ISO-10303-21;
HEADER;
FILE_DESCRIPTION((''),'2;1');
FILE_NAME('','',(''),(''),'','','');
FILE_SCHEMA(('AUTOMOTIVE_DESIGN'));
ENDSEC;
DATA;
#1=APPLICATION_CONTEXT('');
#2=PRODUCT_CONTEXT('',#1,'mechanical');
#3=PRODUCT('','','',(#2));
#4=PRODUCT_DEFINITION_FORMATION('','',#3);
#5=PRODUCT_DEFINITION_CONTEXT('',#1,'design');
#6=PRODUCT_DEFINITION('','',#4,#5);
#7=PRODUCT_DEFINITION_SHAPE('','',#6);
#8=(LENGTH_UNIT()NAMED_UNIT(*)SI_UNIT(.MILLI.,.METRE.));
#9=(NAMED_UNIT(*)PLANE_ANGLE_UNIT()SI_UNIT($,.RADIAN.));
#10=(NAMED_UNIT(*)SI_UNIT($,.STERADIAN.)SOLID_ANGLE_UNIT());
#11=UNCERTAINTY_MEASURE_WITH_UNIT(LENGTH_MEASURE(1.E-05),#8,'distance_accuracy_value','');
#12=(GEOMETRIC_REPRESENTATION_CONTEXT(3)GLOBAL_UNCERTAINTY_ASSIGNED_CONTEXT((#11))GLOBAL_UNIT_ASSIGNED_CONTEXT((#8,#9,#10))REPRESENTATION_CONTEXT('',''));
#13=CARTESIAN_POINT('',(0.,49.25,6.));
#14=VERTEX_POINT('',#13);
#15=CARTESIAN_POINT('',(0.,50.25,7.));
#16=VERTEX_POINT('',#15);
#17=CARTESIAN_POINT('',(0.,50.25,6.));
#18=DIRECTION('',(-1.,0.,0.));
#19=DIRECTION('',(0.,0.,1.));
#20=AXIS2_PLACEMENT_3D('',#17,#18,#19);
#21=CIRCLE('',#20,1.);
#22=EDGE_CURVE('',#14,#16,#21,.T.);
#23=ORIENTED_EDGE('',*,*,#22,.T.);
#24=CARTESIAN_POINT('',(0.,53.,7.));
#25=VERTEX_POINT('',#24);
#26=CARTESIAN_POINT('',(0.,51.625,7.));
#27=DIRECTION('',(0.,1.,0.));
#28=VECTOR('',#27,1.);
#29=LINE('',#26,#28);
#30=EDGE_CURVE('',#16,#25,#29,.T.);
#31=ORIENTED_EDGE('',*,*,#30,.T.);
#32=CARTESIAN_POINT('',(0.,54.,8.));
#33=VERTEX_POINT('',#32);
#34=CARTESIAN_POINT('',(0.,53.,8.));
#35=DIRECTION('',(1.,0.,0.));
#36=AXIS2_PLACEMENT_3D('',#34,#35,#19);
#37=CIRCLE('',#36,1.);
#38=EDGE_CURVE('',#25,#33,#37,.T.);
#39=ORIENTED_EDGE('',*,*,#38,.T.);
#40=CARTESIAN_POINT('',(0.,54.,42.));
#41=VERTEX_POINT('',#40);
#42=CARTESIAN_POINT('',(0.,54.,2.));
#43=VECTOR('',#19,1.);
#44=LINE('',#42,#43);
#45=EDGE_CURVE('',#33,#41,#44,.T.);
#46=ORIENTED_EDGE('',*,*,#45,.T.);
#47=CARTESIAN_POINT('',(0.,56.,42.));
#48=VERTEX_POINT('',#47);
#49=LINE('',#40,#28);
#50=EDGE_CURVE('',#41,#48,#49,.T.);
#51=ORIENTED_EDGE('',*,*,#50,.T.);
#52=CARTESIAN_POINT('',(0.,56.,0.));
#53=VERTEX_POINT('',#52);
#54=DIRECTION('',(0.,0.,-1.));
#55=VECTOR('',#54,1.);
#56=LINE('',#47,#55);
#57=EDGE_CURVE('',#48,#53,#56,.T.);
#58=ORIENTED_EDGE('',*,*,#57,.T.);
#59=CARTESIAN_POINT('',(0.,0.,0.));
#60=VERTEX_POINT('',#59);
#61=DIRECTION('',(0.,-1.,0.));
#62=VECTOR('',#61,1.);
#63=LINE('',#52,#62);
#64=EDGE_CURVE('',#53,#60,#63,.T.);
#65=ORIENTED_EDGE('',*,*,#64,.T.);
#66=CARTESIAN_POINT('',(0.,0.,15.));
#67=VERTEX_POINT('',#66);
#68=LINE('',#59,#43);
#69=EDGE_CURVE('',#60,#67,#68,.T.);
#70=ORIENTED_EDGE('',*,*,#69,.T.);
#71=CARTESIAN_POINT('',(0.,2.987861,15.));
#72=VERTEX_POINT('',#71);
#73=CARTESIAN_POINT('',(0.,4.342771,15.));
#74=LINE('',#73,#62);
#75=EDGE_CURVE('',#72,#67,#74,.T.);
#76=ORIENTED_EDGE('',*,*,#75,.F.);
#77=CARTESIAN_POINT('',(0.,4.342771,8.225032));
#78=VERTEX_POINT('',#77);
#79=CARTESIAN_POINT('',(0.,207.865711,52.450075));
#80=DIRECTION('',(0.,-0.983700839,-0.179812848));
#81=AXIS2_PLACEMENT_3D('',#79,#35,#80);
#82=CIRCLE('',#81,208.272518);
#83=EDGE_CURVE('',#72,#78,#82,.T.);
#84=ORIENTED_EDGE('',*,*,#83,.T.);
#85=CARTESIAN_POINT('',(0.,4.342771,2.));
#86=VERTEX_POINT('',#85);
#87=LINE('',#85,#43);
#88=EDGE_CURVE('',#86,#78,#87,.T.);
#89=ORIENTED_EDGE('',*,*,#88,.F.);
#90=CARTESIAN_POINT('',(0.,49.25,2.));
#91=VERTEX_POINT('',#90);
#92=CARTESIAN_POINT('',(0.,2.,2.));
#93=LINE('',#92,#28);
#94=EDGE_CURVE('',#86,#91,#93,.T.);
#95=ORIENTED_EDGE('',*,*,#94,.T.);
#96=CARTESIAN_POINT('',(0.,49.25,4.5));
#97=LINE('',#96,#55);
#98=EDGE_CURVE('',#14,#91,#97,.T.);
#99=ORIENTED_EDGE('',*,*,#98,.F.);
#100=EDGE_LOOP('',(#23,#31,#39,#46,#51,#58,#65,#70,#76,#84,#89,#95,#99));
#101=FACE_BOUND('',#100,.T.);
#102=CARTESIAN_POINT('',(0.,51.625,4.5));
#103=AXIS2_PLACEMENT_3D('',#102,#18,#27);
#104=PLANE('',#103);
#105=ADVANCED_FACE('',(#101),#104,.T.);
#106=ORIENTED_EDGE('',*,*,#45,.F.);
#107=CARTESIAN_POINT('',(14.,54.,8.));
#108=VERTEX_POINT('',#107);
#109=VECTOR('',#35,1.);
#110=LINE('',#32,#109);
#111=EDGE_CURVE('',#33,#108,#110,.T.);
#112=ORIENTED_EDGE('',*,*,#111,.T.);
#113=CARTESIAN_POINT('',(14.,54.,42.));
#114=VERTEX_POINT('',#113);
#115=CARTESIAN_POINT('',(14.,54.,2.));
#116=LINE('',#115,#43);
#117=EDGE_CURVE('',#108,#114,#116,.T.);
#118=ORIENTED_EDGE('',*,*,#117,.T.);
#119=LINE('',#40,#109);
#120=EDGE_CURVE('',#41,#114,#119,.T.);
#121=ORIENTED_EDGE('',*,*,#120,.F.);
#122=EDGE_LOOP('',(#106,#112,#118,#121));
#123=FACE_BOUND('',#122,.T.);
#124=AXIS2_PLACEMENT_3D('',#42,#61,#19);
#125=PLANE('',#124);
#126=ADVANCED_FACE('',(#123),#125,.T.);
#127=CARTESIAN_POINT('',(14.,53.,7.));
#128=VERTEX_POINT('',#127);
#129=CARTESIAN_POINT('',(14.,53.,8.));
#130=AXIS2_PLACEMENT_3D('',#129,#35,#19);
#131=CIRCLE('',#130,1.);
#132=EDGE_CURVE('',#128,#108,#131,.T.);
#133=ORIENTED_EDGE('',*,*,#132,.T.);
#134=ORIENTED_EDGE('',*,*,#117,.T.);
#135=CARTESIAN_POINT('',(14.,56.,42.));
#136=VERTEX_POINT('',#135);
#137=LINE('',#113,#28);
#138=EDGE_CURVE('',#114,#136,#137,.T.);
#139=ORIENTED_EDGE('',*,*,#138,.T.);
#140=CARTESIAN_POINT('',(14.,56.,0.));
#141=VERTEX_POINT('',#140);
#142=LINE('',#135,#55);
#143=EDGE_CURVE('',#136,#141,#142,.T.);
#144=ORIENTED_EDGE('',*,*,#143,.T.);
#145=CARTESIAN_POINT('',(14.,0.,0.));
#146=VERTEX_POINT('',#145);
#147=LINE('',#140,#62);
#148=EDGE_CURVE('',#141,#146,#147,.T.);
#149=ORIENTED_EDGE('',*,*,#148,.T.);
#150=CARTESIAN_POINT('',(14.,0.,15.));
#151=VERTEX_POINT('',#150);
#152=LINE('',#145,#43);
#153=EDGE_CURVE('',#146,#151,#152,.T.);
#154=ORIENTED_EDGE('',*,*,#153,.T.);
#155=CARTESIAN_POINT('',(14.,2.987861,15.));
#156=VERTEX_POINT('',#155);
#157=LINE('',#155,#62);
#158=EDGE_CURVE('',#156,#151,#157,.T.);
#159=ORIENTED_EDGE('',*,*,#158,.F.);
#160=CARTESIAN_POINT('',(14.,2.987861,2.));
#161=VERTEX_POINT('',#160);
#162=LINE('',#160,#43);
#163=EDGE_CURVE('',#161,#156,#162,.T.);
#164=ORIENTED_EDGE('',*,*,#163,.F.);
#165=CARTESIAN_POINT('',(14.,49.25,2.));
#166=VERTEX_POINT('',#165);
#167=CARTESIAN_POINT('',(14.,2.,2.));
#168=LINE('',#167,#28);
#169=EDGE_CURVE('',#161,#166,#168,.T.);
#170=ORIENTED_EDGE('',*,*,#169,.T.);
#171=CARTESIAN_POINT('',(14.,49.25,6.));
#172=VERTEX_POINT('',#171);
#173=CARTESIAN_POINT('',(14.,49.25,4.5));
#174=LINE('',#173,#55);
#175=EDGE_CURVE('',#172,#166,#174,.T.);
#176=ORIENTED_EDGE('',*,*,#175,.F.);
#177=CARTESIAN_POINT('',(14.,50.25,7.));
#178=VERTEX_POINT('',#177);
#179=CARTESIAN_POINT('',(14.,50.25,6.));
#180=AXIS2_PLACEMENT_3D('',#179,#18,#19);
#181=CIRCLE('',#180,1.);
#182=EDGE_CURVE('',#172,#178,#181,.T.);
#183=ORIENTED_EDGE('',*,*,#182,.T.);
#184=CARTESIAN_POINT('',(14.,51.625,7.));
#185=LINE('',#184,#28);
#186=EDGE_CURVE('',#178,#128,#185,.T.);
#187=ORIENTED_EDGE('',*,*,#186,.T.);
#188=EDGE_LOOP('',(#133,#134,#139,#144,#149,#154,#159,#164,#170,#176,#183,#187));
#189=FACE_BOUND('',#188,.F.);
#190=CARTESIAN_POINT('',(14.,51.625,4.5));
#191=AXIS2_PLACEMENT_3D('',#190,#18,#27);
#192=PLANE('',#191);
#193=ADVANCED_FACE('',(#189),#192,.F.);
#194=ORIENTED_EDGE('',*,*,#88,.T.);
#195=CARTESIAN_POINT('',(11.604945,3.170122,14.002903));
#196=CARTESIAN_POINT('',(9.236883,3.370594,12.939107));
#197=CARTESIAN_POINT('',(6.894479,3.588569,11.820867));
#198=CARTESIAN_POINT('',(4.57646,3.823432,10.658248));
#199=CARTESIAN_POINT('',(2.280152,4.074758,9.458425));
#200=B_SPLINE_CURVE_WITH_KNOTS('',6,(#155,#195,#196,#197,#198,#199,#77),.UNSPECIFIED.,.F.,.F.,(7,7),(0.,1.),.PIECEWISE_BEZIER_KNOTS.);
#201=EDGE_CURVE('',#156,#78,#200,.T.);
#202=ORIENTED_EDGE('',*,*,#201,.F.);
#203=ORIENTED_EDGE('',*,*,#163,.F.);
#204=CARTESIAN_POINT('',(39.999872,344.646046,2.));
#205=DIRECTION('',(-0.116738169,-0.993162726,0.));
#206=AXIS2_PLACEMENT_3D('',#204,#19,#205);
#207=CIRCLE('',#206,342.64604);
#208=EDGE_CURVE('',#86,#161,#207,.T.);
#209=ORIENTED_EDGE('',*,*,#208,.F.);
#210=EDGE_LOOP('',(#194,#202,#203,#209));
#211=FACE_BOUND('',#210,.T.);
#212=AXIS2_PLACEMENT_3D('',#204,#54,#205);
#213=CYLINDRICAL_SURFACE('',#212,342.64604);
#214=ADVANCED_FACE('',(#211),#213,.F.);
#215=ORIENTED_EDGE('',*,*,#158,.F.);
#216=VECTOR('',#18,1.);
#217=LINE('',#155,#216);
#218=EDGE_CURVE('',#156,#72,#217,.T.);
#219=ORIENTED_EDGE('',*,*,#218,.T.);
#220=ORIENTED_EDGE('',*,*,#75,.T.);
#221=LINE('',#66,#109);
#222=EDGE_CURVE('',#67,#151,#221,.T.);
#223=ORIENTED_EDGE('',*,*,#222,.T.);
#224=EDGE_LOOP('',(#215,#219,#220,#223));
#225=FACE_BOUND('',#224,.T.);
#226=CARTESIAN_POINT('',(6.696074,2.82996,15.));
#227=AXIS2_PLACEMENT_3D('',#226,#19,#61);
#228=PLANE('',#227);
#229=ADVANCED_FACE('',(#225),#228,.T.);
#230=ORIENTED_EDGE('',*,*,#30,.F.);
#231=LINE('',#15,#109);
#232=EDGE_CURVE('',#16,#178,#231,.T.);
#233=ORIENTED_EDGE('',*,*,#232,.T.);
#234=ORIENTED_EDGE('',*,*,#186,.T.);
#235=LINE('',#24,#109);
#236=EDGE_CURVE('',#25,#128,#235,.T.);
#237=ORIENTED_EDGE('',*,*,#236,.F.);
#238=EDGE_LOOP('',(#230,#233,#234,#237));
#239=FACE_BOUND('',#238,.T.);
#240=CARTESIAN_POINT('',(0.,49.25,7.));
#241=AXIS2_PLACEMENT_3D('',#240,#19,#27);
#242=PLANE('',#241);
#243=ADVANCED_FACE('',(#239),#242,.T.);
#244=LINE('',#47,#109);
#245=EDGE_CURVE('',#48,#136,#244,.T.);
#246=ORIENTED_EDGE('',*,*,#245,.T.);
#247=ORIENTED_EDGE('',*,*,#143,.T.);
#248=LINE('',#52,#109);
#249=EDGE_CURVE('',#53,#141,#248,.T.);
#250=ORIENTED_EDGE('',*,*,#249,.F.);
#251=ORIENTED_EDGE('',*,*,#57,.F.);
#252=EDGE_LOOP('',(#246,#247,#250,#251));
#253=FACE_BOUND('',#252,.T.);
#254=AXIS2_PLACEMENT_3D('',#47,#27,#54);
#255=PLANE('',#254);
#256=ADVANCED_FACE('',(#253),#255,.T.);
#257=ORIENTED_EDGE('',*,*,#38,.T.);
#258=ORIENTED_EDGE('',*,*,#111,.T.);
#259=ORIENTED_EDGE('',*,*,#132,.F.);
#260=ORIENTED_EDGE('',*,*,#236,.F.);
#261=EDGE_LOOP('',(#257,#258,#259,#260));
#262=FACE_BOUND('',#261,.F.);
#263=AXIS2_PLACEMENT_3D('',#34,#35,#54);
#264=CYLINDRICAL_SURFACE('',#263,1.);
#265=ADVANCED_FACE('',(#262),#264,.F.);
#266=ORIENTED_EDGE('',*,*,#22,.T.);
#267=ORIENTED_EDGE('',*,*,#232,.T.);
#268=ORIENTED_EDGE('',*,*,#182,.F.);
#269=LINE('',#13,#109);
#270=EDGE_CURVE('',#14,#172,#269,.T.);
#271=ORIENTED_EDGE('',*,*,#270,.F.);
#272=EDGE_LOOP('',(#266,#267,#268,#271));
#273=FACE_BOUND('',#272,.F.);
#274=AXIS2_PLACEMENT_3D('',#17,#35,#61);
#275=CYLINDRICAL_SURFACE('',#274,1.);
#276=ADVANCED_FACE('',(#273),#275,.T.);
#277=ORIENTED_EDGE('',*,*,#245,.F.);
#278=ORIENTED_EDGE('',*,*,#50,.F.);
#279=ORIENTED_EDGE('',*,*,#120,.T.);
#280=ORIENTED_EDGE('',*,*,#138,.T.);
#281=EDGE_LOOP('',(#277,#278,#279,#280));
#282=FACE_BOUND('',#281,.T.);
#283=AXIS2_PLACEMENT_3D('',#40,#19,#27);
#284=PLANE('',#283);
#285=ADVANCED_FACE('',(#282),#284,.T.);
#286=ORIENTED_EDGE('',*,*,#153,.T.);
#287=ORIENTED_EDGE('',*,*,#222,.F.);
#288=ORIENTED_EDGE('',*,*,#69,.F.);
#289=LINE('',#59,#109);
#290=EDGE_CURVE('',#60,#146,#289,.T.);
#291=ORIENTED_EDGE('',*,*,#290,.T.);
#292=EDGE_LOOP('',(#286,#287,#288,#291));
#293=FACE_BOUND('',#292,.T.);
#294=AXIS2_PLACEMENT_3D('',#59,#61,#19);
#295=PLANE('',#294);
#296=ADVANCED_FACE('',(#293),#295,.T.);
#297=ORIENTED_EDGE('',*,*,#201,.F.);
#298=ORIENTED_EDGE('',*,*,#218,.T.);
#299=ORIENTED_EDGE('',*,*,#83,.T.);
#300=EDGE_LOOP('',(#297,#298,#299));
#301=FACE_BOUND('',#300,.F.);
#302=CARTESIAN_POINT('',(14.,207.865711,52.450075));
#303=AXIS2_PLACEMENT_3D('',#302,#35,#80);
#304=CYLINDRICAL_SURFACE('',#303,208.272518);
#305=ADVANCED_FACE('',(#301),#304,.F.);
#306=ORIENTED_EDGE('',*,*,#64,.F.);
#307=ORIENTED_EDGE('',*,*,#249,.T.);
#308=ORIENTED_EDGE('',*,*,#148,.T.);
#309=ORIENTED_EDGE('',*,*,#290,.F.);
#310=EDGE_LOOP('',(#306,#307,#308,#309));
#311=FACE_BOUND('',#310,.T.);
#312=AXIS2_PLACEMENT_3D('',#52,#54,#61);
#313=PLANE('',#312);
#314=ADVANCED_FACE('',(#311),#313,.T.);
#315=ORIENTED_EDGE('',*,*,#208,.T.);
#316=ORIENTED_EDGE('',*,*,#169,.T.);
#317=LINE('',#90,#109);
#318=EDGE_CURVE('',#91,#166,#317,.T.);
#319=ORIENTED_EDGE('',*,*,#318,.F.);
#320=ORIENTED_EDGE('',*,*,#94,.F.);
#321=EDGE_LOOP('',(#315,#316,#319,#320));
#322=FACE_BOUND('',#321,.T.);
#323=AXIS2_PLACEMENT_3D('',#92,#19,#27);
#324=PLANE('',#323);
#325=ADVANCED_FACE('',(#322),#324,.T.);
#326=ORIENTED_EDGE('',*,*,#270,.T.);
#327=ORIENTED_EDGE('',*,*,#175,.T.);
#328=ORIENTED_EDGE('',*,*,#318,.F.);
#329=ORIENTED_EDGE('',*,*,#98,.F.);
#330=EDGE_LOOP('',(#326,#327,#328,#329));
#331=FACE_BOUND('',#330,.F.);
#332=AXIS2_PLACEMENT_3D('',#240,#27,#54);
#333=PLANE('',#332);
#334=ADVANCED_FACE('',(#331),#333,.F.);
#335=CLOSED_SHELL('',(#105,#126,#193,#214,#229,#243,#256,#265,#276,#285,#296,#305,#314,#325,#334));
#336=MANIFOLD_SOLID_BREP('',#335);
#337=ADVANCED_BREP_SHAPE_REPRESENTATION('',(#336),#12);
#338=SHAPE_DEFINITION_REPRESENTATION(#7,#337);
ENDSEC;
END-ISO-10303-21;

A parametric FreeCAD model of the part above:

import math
import FreeCAD as App
import Part
import Sketcher
from FreeCAD import Vector
Q = App.Units.Quantity


def edges_at(feature, points):
    """Names of the edges that pass closest to the given points."""
    edges = feature.Shape.Edges
    near = lambda p: min(range(len(edges)), key=lambda i: edges[i].distToShape(Part.Vertex(*p))[0])
    return sorted({f"Edge{near(p) + 1}" for p in points})


def add_polygon(sketch, points):
    """Adds a closed chain of lines whose ends are joined by coincident constraints."""
    first, n = sketch.GeometryCount, len(points)
    for a, b in zip(points, points[1:] + points[:1]):
        sketch.addGeometry(Part.LineSegment(App.Vector(*a, 0), App.Vector(*b, 0)), False)
    for i in range(n):
        sketch.addConstraint(Sketcher.Constraint("Coincident", first + i, 2, first + (i + 1) % n, 1))

doc = App.newDocument("Part")
body = doc.addObject("PartDesign::Body", "Body")

sketch1 = body.newObject("Sketcher::SketchObject", "Sketch")
sketch1.AttachmentSupport = (doc.getObject("YZ_Plane"), [""])
sketch1.MapMode = "FlatFace"
add_polygon(sketch1, [(0, 15), (0, 0), (56, 0), (56, 42), (54, 42), (54, 2), (2, 2), (2, 15)])
sketch1.addConstraint([
    Sketcher.Constraint("Vertical", 0),
    Sketcher.Constraint("Horizontal", 1),
    Sketcher.Constraint("Vertical", 2),
    Sketcher.Constraint("Horizontal", 3),
    Sketcher.Constraint("Vertical", 4),
    Sketcher.Constraint("Horizontal", 5),
    Sketcher.Constraint("Vertical", 6),
    Sketcher.Constraint("Horizontal", 7),
    Sketcher.Constraint("Coincident", 0, 2, -1, 1),
    Sketcher.Constraint("Equal", 3, 7),
    Sketcher.Constraint("DistanceX", 1, 1, 1, 2, Q("56 mm")),
    Sketcher.Constraint("DistanceX", 3, 2, 3, 1, Q("2 mm")),
    Sketcher.Constraint("DistanceY", 0, 2, 0, 1, Q("15 mm")),
    Sketcher.Constraint("DistanceY", 2, 1, 2, 2, Q("42 mm")),
    Sketcher.Constraint("DistanceY", 4, 2, 4, 1, Q("40 mm")),
])
pad1 = body.newObject("PartDesign::Pad", "Pad")
pad1.Profile = sketch1
pad1.Length = 14

sketch2 = body.newObject("Sketcher::SketchObject", "Sketch001")
sketch2.AttachmentSupport = (doc.getObject("XY_Plane"), [""])
sketch2.MapMode = "FlatFace"
sketch2.AttachmentOffset = App.Placement(Vector(0, 0, 2), App.Rotation())
sketch2.addGeometry([
    Part.LineSegment(Vector(14, 2, 0), Vector(14, 3, 0)),
    Part.ArcOfCircle(Part.Circle(Vector(40, 344.6, 0), Vector(0, 0, 1), 342.6), math.radians(-96.7), math.radians(-94.35)),
    Part.LineSegment(Vector(0, 4.3, 0), Vector(0, 2, 0)),
    Part.LineSegment(Vector(0, 2, 0), Vector(14, 2, 0)),
], False)
sketch2.addConstraint([
    Sketcher.Constraint("Coincident", 0, 2, 1, 2),
    Sketcher.Constraint("Coincident", 1, 1, 2, 1),
    Sketcher.Constraint("Coincident", 2, 2, 3, 1),
    Sketcher.Constraint("Coincident", 3, 2, 0, 1),
    Sketcher.Constraint("Vertical", 0),
    Sketcher.Constraint("Vertical", 2),
    Sketcher.Constraint("Horizontal", 3),
    Sketcher.Constraint("PointOnObject", 2, 2, -2),
    Sketcher.Constraint("DistanceX", 3, 1, 3, 2, Q("14 mm")),
    Sketcher.Constraint("DistanceY", -1, 1, 2, 2, Q("2 mm")),
    Sketcher.Constraint("Radius", 1, Q("342.64604 mm")),
    Sketcher.Constraint("DistanceY", 0, 1, 0, 2, Q("0.987861 mm")),
    Sketcher.Constraint("DistanceY", 2, 2, 2, 1, Q("2.342771 mm")),
])
pad2 = body.newObject("PartDesign::Pad", "Pad001")
pad2.Profile = sketch2
pad2.Length = 13

sketch3 = body.newObject("Sketcher::SketchObject", "Sketch002")
sketch3.AttachmentSupport = (doc.getObject("YZ_Plane"), [""])
sketch3.MapMode = "FlatFace"
sketch3.AttachmentOffset = App.Placement(Vector(0, 0, 14), App.Rotation())
sketch3.addGeometry([
    Part.ArcOfCircle(Part.Circle(Vector(207.9, 52.5, 0), Vector(0, 0, 1), 208.3), math.radians(-169.64), math.radians(-166.34)),
    Part.LineSegment(Vector(5.5, 3.2, 0), Vector(5.5, 15, 0)),
    Part.LineSegment(Vector(5.5, 15, 0), Vector(3, 15, 0)),
], False)
sketch3.addConstraint([
    Sketcher.Constraint("Coincident", 0, 2, 1, 1),
    Sketcher.Constraint("Coincident", 1, 2, 2, 1),
    Sketcher.Constraint("Coincident", 2, 2, 0, 1),
    Sketcher.Constraint("Vertical", 1),
    Sketcher.Constraint("Horizontal", 2),
    Sketcher.Constraint("DistanceX", 2, 2, 2, 1, Q("2.5 mm")),
    Sketcher.Constraint("DistanceY", -1, 1, 1, 2, Q("15 mm")),
    Sketcher.Constraint("DistanceY", 1, 1, 1, 2, Q("11.75 mm")),
    Sketcher.Constraint("Radius", 0, Q("208.272518 mm")),
    Sketcher.Constraint("DistanceX", -1, 1, 0, 3, Q("207.865711 mm")),
])
pocket1 = body.newObject("PartDesign::Pocket", "Pocket")
pocket1.Profile = sketch3
pocket1.Length = 100

sketch4 = body.newObject("Sketcher::SketchObject", "Sketch003")
sketch4.AttachmentSupport = (doc.getObject("YZ_Plane"), [""])
sketch4.MapMode = "FlatFace"
add_polygon(sketch4, [(49.2, 2), (49.2, 7), (54, 7), (54, 2)])
sketch4.addConstraint([
    Sketcher.Constraint("Vertical", 0),
    Sketcher.Constraint("Horizontal", 1),
    Sketcher.Constraint("Vertical", 2),
    Sketcher.Constraint("Horizontal", 3),
    Sketcher.Constraint("DistanceY", 0, 1, 0, 2, Q("5 mm")),
    Sketcher.Constraint("DistanceY", -1, 1, 0, 2, Q("7 mm")),
    Sketcher.Constraint("DistanceX", -1, 1, 1, 2, Q("54 mm")),
    Sketcher.Constraint("DistanceX", 1, 1, 1, 2, Q("4.75 mm")),
])
pad3 = body.newObject("PartDesign::Pad", "Pad002")
pad3.Profile = sketch4
pad3.Length = 14
doc.recompute()

fillet = body.newObject("PartDesign::Fillet", "Fillet")
fillet.Base = (pad3, edges_at(pad3, [(7, 49.25, 7)]))
fillet.Radius = 1
doc.recompute()

fillet2 = body.newObject("PartDesign::Fillet", "Fillet001")
fillet2.Base = (fillet, edges_at(fillet, [(7, 54, 7)]))
fillet2.Radius = 1

doc.recompute()
